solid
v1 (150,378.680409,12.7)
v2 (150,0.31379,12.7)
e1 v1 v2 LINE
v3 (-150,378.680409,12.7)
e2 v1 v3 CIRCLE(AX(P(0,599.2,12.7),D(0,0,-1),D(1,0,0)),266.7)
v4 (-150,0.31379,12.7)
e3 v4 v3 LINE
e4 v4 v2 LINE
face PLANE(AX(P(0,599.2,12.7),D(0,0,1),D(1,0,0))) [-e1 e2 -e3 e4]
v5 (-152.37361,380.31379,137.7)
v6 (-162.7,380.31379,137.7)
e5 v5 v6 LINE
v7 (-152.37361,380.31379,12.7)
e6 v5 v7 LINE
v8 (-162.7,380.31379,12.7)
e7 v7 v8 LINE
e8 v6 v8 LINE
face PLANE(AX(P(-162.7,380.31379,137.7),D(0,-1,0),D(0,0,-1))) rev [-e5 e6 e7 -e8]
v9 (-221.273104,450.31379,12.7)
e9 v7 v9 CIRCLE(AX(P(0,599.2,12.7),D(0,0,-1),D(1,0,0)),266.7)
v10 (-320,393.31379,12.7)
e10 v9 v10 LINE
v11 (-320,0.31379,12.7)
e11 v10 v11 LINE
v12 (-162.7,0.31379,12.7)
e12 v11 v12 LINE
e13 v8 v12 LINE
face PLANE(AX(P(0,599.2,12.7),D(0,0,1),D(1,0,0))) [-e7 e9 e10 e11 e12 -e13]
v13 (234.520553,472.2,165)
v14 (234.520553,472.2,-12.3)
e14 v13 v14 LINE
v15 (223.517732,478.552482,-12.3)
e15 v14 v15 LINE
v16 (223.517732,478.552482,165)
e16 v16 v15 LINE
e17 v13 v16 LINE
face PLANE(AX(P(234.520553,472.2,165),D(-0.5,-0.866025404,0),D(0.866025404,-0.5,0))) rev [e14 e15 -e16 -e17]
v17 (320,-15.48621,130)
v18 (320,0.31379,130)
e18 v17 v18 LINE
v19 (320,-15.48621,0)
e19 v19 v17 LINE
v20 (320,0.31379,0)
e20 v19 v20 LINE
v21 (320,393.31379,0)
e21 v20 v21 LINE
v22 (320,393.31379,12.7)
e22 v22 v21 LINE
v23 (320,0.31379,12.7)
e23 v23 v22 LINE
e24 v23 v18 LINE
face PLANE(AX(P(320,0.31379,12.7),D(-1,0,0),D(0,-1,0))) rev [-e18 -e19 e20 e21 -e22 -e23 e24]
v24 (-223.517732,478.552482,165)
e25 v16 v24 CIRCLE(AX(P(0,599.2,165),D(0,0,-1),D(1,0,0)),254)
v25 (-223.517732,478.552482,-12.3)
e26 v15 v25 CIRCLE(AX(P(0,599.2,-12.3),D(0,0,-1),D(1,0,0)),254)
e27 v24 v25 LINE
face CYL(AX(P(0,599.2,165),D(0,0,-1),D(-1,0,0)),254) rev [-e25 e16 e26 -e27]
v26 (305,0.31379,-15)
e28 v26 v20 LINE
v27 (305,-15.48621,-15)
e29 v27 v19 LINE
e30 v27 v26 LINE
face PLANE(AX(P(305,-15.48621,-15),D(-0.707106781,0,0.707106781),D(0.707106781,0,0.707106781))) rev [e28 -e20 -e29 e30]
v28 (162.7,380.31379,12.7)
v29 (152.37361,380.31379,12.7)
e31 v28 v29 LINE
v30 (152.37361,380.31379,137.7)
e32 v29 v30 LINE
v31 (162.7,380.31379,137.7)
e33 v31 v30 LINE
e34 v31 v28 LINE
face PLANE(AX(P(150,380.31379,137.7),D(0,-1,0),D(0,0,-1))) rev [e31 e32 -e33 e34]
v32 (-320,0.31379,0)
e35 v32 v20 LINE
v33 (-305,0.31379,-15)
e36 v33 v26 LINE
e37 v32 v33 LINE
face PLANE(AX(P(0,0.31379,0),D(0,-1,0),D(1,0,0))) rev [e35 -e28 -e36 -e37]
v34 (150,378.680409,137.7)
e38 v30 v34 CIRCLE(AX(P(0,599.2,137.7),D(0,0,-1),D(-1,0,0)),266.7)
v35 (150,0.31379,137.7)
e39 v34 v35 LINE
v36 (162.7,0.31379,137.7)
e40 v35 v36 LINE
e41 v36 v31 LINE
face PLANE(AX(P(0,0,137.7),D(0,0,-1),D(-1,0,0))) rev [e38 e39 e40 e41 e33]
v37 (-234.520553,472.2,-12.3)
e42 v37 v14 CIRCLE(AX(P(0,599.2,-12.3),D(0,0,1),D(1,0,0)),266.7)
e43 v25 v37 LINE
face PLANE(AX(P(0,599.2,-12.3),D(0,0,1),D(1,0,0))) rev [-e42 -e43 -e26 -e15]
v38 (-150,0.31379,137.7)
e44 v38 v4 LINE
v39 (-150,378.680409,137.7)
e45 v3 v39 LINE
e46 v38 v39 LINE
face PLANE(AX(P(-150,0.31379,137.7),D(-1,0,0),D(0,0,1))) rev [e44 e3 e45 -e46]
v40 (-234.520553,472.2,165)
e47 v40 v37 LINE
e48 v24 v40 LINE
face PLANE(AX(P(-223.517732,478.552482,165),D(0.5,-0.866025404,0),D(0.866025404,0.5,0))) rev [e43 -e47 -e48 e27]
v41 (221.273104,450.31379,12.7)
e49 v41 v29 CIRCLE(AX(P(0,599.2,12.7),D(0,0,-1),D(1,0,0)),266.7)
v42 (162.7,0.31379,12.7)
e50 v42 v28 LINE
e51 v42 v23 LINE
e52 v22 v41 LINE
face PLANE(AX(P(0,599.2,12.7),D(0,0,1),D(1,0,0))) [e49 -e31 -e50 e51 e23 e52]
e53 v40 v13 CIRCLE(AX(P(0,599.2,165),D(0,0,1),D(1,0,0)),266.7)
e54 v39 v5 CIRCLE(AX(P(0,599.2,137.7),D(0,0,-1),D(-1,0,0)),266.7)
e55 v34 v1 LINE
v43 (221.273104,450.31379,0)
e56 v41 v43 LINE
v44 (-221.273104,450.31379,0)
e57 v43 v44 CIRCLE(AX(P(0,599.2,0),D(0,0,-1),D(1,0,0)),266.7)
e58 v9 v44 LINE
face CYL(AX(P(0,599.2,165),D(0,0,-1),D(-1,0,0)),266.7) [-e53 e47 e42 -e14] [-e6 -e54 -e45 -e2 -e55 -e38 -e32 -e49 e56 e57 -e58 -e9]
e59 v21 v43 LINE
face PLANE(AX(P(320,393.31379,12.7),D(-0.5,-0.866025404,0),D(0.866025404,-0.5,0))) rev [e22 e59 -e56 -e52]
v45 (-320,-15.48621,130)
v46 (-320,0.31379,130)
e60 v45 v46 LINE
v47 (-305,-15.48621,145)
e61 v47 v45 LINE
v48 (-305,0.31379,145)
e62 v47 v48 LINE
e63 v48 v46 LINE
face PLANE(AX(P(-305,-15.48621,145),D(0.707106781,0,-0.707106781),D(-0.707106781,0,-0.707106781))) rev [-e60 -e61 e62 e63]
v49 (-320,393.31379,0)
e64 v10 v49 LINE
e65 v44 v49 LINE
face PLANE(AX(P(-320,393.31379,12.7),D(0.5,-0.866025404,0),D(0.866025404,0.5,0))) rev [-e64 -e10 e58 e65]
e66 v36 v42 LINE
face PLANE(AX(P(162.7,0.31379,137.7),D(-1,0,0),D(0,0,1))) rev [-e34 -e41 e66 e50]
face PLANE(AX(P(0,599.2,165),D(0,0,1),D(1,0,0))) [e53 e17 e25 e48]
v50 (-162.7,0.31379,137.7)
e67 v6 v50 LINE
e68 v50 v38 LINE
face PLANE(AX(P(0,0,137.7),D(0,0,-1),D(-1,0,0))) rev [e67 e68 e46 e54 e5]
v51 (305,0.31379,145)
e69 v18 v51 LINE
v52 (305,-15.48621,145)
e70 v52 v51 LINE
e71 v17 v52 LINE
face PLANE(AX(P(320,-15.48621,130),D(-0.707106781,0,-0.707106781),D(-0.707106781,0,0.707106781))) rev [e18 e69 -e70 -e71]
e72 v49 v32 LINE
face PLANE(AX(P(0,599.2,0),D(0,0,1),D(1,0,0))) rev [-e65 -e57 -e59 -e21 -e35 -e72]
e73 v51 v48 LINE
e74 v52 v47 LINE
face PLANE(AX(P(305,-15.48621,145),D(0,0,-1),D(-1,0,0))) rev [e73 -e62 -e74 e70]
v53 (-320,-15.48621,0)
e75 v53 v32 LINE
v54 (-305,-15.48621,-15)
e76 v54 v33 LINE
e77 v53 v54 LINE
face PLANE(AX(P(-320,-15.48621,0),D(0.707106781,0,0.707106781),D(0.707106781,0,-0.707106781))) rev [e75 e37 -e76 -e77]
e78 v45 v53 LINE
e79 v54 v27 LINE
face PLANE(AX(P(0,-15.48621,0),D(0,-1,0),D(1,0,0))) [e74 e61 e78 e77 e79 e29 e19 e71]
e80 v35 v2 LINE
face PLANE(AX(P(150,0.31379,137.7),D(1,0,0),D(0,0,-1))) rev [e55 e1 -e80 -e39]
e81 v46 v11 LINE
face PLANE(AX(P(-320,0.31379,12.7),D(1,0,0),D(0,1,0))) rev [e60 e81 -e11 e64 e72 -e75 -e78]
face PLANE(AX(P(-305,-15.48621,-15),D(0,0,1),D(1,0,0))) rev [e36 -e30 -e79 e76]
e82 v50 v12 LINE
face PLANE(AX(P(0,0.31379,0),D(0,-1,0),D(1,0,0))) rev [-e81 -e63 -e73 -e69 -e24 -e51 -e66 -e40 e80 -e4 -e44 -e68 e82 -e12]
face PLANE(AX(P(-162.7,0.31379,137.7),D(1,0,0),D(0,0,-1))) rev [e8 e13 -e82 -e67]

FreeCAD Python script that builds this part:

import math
import FreeCAD as App
import Part
import Sketcher
from FreeCAD import Vector
Q = App.Units.Quantity

doc = App.newDocument("Part")
body = doc.addObject("PartDesign::Body", "Body")

sketch1 = body.newObject("Sketcher::SketchObject", "Sketch")
sketch1.AttachmentSupport = (doc.getObject("XY_Plane"), [""])
sketch1.MapMode = "FlatFace"
sketch1.addGeometry([
    Part.LineSegment(Vector(-320, 0, 0), Vector(320, 0, 0)),
    Part.LineSegment(Vector(320, 0, 0), Vector(320, 393, 0)),
    Part.LineSegment(Vector(320, 393, 0), Vector(221, 450, 0)),
    Part.ArcOfCircle(Part.Circle(Vector(0, 599, 0), Vector(0, 0, 1), 267), math.radians(-146), math.radians(-34)),
    Part.LineSegment(Vector(-221, 450, 0), Vector(-320, 393, 0)),
    Part.LineSegment(Vector(-320, 393, 0), Vector(-320, 0, 0)),
], False)
sketch1.addConstraint([
    Sketcher.Constraint("Coincident", 0, 2, 1, 1),
    Sketcher.Constraint("Coincident", 1, 2, 2, 1),
    Sketcher.Constraint("Coincident", 2, 2, 3, 2),
    Sketcher.Constraint("Coincident", 3, 1, 4, 1),
    Sketcher.Constraint("Coincident", 4, 2, 5, 1),
    Sketcher.Constraint("Coincident", 5, 2, 0, 1),
    Sketcher.Constraint("Horizontal", 0),
    Sketcher.Constraint("Vertical", 1),
    Sketcher.Constraint("Vertical", 5),
    Sketcher.Constraint("Symmetric", 2, 2, 3, 1, -2),
    Sketcher.Constraint("Symmetric", 1, 2, 4, 2, -2),
    Sketcher.Constraint("Radius", 3, 266.7),
    Sketcher.Constraint("DistanceX", 0, 1, 0, 2, 640.0),
    Sketcher.Constraint("DistanceY", 1, 1, 1, 2, 393.0),
    Sketcher.Constraint("Angle", 2, Q("150 deg")),
    Sketcher.Constraint("Distance", 2, 114.0),
    Sketcher.Constraint("DistanceY", -1, 1, 3, 3, 599.2),
])
pad1 = body.newObject("PartDesign::Pad", "Pad")
pad1.Profile = sketch1
pad1.Length = 12.7

sketch2 = body.newObject("Sketcher::SketchObject", "Sketch001")
sketch2.AttachmentSupport = (doc.getObject("XY_Plane"), [""])
sketch2.MapMode = "FlatFace"
sketch2.AttachmentOffset = App.Placement(Vector(0, 0, 12.7), App.Rotation())
sketch2.addGeometry([
    Part.LineSegment(Vector(235, 472, 0), Vector(224, 479, 0)),
    Part.ArcOfCircle(Part.Circle(Vector(0, 599, 0), Vector(0, 0, 1), 254), math.radians(-152), math.radians(-28)),
    Part.LineSegment(Vector(-224, 479, 0), Vector(-235, 472, 0)),
    Part.ArcOfCircle(Part.Circle(Vector(0, 599, 0), Vector(0, 0, 1), 267), math.radians(-152), math.radians(-28)),
], False)
sketch2.addConstraint([
    Sketcher.Constraint("Coincident", 0, 2, 1, 2),
    Sketcher.Constraint("Coincident", 1, 1, 2, 1),
    Sketcher.Constraint("Coincident", 2, 2, 3, 1),
    Sketcher.Constraint("Coincident", 3, 2, 0, 1),
    Sketcher.Constraint("Coincident", 3, 3, 1, 3),
    Sketcher.Constraint("Symmetric", 0, 2, 1, 1, -2),
    Sketcher.Constraint("Horizontal", 2, 2, 3, 2),
    Sketcher.Constraint("Radius", 1, 254.0),
    Sketcher.Constraint("Radius", 3, 266.7),
    Sketcher.Constraint("Angle", 0, Q("150 deg")),
    Sketcher.Constraint("DistanceY", 2, 2, 1, 3, 127.0),
    Sketcher.Constraint("DistanceY", -1, 1, 1, 3, 599.2),
])
pad2 = body.newObject("PartDesign::Pad", "Pad001")
pad2.Profile = sketch2
pad2.Type = "TwoLengths"
pad2.Length = 152.3
pad2.Length2 = 25

sketch3 = body.newObject("Sketcher::SketchObject", "Sketch002")
sketch3.AttachmentSupport = (doc.getObject("XZ_Plane"), [""])
sketch3.MapMode = "FlatFace"
sketch3.AttachmentOffset = App.Placement(Vector(0, 0, -0.31379), App.Rotation())
sketch3.addGeometry([
    Part.LineSegment(Vector(-305, -15, 0), Vector(305, -15, 0)),
    Part.LineSegment(Vector(305, -15, 0), Vector(320, 0, 0)),
    Part.LineSegment(Vector(320, 0, 0), Vector(320, 130, 0)),
    Part.LineSegment(Vector(320, 130, 0), Vector(305, 145, 0)),
    Part.LineSegment(Vector(305, 145, 0), Vector(-305, 145, 0)),
    Part.LineSegment(Vector(-305, 145, 0), Vector(-320, 130, 0)),
    Part.LineSegment(Vector(-320, 130, 0), Vector(-320, 0, 0)),
    Part.LineSegment(Vector(-320, 0, 0), Vector(-305, -15, 0)),
], False)
sketch3.addConstraint([
    Sketcher.Constraint("Coincident", 0, 2, 1, 1),
    Sketcher.Constraint("Coincident", 1, 2, 2, 1),
    Sketcher.Constraint("Coincident", 2, 2, 3, 1),
    Sketcher.Constraint("Coincident", 3, 2, 4, 1),
    Sketcher.Constraint("Coincident", 4, 2, 5, 1),
    Sketcher.Constraint("Coincident", 5, 2, 6, 1),
    Sketcher.Constraint("Coincident", 6, 2, 7, 1),
    Sketcher.Constraint("Coincident", 7, 2, 0, 1),
    Sketcher.Constraint("Horizontal", 0),
    Sketcher.Constraint("Vertical", 2),
    Sketcher.Constraint("Horizontal", 4),
    Sketcher.Constraint("Vertical", 6),
    Sketcher.Constraint("Symmetric", 1, 2, 6, 2, -1, 1),
    Sketcher.Constraint("PointOnObject", 1, 2, -1),
    Sketcher.Constraint("Perpendicular", 1, 3),
    Sketcher.Constraint("Perpendicular", 3, 5),
    Sketcher.Constraint("Perpendicular", 5, 7),
    Sketcher.Constraint("Horizontal", 2, 2, 5, 2),
    Sketcher.Constraint("Vertical", 0, 2, 3, 2),
    Sketcher.Constraint("Vertical", 4, 2, 7, 2),
    Sketcher.Constraint("DistanceX", 0, 1, 0, 2, 610.0),
    Sketcher.Constraint("DistanceY", 2, 1, 2, 2, 130.0),
    Sketcher.Constraint("DistanceY", 0, 2, -1, 1, 15.0),
])
pad3 = body.newObject("PartDesign::Pad", "Pad002")
pad3.Profile = sketch3
pad3.Length = 15.8

sketch4 = body.newObject("Sketcher::SketchObject", "Sketch003")
sketch4.AttachmentSupport = (doc.getObject("XY_Plane"), [""])
sketch4.MapMode = "FlatFace"
sketch4.AttachmentOffset = App.Placement(Vector(0, 0, 12.7), App.Rotation())
sketch4.addGeometry([
    Part.LineSegment(Vector(-163, 380, 0), Vector(-163, 0, 0)),
    Part.LineSegment(Vector(-163, 0, 0), Vector(-150, 0, 0)),
    Part.LineSegment(Vector(-150, 0, 0), Vector(-150, 380, 0)),
    Part.LineSegment(Vector(-150, 380, 0), Vector(-163, 380, 0)),
    Part.LineSegment(Vector(150, 380, 0), Vector(150, 0, 0)),
    Part.LineSegment(Vector(150, 0, 0), Vector(163, 0, 0)),
    Part.LineSegment(Vector(163, 0, 0), Vector(163, 380, 0)),
    Part.LineSegment(Vector(163, 380, 0), Vector(150, 380, 0)),
], False)
sketch4.addConstraint([
    Sketcher.Constraint("Coincident", 0, 2, 1, 1),
    Sketcher.Constraint("Coincident", 1, 2, 2, 1),
    Sketcher.Constraint("Coincident", 2, 2, 3, 1),
    Sketcher.Constraint("Coincident", 3, 2, 0, 1),
    Sketcher.Constraint("Coincident", 4, 2, 5, 1),
    Sketcher.Constraint("Coincident", 5, 2, 6, 1),
    Sketcher.Constraint("Coincident", 6, 2, 7, 1),
    Sketcher.Constraint("Coincident", 7, 2, 4, 1),
    Sketcher.Constraint("Vertical", 0),
    Sketcher.Constraint("Horizontal", 1),
    Sketcher.Constraint("Vertical", 2),
    Sketcher.Constraint("Horizontal", 3),
    Sketcher.Constraint("Vertical", 4),
    Sketcher.Constraint("Horizontal", 5),
    Sketcher.Constraint("Vertical", 6),
    Sketcher.Constraint("Horizontal", 7),
    Sketcher.Constraint("Symmetric", 1, 2, 4, 2, -2),
    Sketcher.Constraint("Symmetric", 3, 2, 6, 2, -2),
    Sketcher.Constraint("DistanceY", 0, 2, 0, 1, 380.0),
    Sketcher.Constraint("DistanceX", 1, 1, 1, 2, 12.7),
    Sketcher.Constraint("DistanceX", 1, 2, -1, 1, 150.0),
    Sketcher.Constraint("DistanceY", -1, 1, 0, 2, 0.31379),
])
pad4 = body.newObject("PartDesign::Pad", "Pad003")
pad4.Profile = sketch4
pad4.Length = 125

doc.recompute()
